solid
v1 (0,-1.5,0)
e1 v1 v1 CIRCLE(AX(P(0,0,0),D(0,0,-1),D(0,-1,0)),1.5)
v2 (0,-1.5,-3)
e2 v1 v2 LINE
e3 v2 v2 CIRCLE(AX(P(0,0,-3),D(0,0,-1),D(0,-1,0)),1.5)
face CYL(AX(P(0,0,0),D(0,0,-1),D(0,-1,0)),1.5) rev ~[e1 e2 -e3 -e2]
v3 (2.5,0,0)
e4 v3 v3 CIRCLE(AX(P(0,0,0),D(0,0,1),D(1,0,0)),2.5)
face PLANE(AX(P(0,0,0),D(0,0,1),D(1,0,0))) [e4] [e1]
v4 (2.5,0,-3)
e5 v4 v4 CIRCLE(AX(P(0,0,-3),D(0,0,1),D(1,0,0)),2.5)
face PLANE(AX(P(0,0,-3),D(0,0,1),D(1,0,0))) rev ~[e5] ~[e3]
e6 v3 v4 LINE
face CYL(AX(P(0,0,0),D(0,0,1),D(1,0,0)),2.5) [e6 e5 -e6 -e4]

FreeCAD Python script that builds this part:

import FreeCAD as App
import Part
import Sketcher
Q = App.Units.Quantity

doc = App.newDocument("Part")
params = doc.addObject("Spreadsheet::Sheet", "Params")
for row, (alias, value) in enumerate([
    ("sketch1_diameter", "5 mm"),
    ("pad1_length", "3 mm"),
    ("sketch2_diameter", "3 mm"),
    ("hole_diameter", "3 mm"),
], start=1):
    params.set(f"A{row}", alias)
    params.set(f"B{row}", "=" + value)
    params.setAlias(f"B{row}", alias)

body = doc.addObject("PartDesign::Body", "Body")

# Sketch on XY plane
sketch1 = doc.addObject("Sketcher::SketchObject", "Sketch")
body.addObject(sketch1)
sketch1.AttachmentSupport = (doc.XY_Plane, [""])
sketch1.MapMode = "FlatFace"
sketch1.addGeometry(Part.Circle(App.Vector(0, 0, 0), App.Vector(0, 0, 1), 2.5), False)
sketch1.addConstraint([
    Sketcher.Constraint("Coincident", 0, 3, -1, 1),
    Sketcher.Constraint("Diameter", 0, Q("5 mm")),
])
sketch1.setExpression("Constraints[1]", "Params.sketch1_diameter")
pad1 = doc.addObject("PartDesign::Pad", "Pad")
body.addObject(pad1)
pad1.Profile = sketch1
pad1.setExpression("Length", "Params.pad1_length")
pad1.Reversed = True

# Sketch on XY plane
sketch2 = doc.addObject("Sketcher::SketchObject", "Sketch001")
body.addObject(sketch2)
sketch2.AttachmentSupport = (doc.XY_Plane, [""])
sketch2.MapMode = "FlatFace"
sketch2.addGeometry(Part.Circle(App.Vector(0, 0, 0), App.Vector(0, 0, 1), 1.5), False)
sketch2.addConstraint([
    Sketcher.Constraint("Coincident", 0, 3, -1, 1),
    Sketcher.Constraint("Diameter", 0, Q("3 mm")),
])
sketch2.setExpression("Constraints[1]", "Params.sketch2_diameter")
doc.recompute()
hole = doc.addObject("PartDesign::Hole", "Hole")
body.addObject(hole)
hole.Profile = sketch2
hole.ThreadType = "None"
hole.setExpression("Diameter", "Params.hole_diameter")
hole.DepthType = "ThroughAll"

doc.recompute()
